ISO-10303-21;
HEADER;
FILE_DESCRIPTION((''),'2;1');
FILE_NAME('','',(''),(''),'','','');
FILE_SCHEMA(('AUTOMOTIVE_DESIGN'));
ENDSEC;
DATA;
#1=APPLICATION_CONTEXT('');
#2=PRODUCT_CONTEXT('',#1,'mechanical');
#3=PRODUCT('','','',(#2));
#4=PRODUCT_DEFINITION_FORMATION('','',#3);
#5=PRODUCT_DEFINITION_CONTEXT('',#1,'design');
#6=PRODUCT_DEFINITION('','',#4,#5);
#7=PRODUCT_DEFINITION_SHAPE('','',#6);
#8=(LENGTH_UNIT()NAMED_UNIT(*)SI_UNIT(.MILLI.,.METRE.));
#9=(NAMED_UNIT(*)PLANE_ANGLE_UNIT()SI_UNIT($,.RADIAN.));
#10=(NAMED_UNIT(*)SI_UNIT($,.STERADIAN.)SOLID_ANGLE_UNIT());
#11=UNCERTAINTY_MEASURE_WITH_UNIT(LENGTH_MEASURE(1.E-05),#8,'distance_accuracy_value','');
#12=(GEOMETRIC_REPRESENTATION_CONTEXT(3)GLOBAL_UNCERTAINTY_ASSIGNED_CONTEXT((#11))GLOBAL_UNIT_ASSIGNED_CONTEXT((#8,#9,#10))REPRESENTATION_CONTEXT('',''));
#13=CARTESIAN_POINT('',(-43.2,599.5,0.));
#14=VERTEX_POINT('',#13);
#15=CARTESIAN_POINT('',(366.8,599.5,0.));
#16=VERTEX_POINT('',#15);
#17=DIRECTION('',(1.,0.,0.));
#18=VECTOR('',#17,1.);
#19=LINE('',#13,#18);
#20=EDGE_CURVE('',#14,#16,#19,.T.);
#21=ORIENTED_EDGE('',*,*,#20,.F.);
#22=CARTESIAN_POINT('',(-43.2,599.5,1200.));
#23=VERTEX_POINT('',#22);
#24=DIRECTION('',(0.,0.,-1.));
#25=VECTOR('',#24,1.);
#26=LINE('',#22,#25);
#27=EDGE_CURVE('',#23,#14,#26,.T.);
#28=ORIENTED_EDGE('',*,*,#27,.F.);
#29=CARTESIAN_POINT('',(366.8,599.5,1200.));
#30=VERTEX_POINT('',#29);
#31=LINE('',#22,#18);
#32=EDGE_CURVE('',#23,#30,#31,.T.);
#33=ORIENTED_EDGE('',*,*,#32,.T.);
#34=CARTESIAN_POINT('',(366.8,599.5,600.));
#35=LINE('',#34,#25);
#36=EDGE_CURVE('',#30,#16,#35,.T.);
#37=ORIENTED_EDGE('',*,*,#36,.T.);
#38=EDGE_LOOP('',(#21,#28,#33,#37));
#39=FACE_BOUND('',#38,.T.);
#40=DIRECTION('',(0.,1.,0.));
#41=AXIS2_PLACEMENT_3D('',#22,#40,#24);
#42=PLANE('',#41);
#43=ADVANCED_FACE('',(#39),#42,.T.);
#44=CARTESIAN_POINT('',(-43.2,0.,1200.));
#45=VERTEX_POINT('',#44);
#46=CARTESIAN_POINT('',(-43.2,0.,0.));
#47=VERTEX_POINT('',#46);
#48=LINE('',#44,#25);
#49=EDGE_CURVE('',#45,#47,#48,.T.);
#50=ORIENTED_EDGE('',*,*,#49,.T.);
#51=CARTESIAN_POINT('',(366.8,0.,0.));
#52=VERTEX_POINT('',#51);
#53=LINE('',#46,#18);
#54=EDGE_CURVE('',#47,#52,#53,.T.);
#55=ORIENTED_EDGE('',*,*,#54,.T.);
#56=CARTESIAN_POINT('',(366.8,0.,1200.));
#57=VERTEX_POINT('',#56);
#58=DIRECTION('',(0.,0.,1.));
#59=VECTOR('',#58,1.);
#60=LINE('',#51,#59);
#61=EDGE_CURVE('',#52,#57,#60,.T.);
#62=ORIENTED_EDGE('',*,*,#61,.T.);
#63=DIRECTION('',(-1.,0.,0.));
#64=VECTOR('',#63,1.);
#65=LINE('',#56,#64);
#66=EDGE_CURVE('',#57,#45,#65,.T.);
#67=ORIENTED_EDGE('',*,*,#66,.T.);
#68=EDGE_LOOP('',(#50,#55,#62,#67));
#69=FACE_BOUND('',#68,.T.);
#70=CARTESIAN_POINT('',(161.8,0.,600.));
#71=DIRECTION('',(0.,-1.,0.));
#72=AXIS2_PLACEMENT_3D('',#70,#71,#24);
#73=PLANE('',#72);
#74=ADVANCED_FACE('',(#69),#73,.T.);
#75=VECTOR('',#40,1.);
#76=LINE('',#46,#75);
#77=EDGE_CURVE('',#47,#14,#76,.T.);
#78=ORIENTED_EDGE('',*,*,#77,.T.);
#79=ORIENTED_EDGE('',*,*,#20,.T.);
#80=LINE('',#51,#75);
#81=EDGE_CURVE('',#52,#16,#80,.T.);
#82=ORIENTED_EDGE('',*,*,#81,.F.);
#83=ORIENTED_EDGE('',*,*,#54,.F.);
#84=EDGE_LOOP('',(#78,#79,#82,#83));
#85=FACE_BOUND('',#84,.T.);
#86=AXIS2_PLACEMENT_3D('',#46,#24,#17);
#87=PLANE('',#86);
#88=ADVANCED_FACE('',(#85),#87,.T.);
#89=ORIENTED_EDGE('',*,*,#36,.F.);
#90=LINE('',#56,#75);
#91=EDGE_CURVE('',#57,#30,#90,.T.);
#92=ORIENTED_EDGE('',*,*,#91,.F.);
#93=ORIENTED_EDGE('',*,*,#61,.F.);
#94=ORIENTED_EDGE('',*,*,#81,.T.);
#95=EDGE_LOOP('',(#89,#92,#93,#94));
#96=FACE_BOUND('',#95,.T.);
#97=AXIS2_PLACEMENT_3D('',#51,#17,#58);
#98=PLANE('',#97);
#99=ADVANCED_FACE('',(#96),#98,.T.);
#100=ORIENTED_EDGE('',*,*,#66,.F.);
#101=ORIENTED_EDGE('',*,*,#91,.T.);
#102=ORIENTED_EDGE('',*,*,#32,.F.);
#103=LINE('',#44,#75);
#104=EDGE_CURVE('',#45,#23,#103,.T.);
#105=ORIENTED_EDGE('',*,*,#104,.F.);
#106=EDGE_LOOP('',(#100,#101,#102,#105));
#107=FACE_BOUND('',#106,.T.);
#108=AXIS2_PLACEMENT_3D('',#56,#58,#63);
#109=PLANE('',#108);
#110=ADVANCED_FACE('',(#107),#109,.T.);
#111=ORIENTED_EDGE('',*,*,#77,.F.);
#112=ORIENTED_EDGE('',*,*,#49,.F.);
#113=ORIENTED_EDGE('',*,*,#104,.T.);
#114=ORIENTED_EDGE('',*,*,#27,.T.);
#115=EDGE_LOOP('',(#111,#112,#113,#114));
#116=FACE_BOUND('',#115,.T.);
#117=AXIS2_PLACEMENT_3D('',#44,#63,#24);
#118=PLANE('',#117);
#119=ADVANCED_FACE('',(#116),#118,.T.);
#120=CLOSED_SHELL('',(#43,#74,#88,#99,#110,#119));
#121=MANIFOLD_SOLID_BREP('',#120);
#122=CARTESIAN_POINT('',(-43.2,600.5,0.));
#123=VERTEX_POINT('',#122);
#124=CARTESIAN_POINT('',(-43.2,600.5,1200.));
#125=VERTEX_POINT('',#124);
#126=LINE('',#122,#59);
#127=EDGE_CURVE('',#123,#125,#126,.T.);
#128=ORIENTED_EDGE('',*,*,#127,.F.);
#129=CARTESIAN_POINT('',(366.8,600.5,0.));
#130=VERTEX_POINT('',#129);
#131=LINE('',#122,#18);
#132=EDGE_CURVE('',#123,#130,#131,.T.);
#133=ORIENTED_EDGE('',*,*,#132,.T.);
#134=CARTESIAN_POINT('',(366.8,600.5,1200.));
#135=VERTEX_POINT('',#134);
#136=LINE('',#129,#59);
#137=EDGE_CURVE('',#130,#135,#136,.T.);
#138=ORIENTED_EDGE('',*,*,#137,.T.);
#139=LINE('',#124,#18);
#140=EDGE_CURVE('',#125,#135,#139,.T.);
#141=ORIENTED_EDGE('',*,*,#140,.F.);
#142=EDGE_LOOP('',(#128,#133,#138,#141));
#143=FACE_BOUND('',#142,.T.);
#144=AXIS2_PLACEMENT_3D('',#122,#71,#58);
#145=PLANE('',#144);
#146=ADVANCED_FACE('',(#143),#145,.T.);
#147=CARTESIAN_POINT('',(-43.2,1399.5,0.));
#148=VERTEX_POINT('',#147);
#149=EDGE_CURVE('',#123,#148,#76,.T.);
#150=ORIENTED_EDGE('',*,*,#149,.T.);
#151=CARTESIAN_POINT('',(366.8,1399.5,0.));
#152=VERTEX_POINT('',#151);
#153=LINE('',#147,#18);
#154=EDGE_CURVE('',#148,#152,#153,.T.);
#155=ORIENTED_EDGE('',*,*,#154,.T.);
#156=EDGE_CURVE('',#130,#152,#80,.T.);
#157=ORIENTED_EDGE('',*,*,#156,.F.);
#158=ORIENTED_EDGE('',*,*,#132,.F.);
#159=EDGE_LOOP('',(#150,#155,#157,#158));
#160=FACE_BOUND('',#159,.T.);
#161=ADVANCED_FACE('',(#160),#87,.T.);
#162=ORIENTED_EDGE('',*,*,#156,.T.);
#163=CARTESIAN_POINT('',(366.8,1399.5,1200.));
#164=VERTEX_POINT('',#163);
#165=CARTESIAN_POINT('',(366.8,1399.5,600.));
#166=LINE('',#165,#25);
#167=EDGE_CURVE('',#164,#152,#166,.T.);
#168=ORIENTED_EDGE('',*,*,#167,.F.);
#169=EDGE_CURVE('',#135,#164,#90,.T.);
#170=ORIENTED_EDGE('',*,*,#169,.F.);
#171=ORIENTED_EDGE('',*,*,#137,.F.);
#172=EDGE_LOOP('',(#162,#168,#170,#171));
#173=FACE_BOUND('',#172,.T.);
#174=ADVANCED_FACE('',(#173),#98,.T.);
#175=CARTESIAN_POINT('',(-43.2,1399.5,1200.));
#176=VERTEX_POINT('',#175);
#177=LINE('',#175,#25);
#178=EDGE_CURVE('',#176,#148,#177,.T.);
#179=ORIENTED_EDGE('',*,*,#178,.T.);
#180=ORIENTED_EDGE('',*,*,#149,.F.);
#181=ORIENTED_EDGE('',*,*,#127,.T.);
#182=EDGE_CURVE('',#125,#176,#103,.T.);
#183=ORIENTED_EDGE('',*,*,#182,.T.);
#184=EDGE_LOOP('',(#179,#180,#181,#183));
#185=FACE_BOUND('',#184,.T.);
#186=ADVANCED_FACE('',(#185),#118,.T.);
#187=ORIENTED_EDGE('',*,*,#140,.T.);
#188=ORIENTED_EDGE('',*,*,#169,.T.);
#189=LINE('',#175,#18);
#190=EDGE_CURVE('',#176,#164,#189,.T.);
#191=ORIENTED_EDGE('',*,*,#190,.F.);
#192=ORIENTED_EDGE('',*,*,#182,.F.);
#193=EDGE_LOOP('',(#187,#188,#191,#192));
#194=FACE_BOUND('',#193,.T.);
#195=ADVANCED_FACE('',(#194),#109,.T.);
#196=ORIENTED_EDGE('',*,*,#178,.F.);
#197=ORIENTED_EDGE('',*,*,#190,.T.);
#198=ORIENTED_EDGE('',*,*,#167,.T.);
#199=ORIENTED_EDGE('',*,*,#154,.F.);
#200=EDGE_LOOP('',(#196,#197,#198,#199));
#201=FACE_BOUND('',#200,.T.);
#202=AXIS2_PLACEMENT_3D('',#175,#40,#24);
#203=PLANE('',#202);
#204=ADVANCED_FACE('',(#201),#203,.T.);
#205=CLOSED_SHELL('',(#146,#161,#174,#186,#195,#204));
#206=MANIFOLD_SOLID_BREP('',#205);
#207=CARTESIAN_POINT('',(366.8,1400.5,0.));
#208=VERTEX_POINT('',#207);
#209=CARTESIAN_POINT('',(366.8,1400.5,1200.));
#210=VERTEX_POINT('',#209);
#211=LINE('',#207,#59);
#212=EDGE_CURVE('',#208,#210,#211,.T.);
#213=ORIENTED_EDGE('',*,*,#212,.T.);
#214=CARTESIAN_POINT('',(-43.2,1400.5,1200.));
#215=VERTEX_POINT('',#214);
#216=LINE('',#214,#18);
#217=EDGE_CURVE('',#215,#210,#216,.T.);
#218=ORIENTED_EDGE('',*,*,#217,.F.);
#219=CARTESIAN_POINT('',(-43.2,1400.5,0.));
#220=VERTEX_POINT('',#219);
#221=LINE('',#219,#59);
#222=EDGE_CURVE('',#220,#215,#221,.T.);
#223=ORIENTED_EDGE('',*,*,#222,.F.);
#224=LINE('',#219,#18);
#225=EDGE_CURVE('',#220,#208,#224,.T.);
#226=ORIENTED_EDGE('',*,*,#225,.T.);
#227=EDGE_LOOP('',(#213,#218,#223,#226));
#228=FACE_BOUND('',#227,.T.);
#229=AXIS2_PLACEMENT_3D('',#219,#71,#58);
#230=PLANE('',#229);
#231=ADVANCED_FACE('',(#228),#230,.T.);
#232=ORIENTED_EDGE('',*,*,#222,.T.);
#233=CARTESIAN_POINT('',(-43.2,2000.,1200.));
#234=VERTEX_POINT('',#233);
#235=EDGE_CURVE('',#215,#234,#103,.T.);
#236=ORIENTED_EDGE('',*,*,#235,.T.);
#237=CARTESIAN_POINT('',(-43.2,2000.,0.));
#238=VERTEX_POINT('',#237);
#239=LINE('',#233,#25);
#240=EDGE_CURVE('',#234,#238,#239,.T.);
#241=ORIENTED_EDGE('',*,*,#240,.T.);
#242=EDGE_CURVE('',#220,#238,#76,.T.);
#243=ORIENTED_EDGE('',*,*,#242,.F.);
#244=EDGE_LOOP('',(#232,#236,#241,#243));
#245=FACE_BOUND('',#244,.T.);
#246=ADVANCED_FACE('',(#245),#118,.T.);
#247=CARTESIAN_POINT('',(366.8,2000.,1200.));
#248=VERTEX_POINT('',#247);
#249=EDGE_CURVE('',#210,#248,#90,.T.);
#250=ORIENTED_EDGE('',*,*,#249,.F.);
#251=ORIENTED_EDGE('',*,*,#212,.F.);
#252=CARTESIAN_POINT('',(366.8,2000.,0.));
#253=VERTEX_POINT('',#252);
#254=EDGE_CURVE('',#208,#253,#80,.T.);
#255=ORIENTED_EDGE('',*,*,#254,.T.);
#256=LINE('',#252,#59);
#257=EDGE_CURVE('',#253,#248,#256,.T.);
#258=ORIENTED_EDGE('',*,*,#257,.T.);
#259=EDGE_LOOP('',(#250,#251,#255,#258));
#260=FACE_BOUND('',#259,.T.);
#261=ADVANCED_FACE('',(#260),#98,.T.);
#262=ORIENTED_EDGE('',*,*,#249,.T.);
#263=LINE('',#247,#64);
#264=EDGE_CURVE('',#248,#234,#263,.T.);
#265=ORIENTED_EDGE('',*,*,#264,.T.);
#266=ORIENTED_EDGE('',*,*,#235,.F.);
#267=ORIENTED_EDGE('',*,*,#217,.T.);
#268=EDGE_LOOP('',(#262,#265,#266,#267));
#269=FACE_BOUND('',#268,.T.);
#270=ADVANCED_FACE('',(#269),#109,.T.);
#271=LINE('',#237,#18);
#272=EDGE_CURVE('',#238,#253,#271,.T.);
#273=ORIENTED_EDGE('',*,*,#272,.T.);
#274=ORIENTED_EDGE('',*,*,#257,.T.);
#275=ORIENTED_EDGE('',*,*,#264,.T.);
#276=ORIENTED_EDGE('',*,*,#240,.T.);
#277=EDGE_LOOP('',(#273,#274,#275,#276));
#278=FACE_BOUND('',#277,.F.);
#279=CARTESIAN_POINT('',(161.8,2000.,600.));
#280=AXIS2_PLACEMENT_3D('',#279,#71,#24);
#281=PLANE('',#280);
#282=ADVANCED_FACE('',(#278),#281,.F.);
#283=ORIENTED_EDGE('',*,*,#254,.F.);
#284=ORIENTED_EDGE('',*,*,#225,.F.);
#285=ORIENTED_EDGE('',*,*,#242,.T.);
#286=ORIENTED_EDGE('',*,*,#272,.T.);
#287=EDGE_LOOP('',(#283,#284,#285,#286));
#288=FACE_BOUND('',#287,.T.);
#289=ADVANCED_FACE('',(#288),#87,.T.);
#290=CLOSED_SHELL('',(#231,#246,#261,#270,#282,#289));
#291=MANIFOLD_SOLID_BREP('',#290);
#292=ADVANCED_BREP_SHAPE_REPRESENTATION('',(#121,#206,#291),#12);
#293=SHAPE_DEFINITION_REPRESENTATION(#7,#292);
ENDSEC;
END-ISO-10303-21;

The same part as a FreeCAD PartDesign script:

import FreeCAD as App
import Part
import Sketcher

doc = App.newDocument("Part")
body = doc.addObject("PartDesign::Body", "Body")
body.AllowCompound = True

# Sketch on XZ plane
sketch1 = body.newObject("Sketcher::SketchObject", "Sketch")
sketch1.AttachmentSupport = (doc.getObject("XZ_Plane"), [""])
sketch1.MapMode = "FlatFace"
sketch1.addGeometry(Part.LineSegment(App.Vector(-43.2, 1200, 0), App.Vector(-43.2, 0, 0)), False)
sketch1.addGeometry(Part.LineSegment(App.Vector(-43.2, 0, 0), App.Vector(366.8, 0, 0)), False)
sketch1.addGeometry(Part.LineSegment(App.Vector(366.8, 0, 0), App.Vector(366.8, 1200, 0)), False)
sketch1.addGeometry(Part.LineSegment(App.Vector(366.8, 1200, 0), App.Vector(-43.2, 1200, 0)), False)
sketch1.addConstraint(Sketcher.Constraint("Coincident", 0, 2, 1, 1))
sketch1.addConstraint(Sketcher.Constraint("Coincident", 1, 2, 2, 1))
sketch1.addConstraint(Sketcher.Constraint("Coincident", 2, 2, 3, 1))
sketch1.addConstraint(Sketcher.Constraint("Coincident", 3, 2, 0, 1))
sketch1.addConstraint(Sketcher.Constraint("Vertical", 0))
sketch1.addConstraint(Sketcher.Constraint("Horizontal", 1))
sketch1.addConstraint(Sketcher.Constraint("Vertical", 2))
sketch1.addConstraint(Sketcher.Constraint("Horizontal", 3))
sketch1.addConstraint(Sketcher.Constraint("PointOnObject", 0, 2, -1))
sketch1.addConstraint(Sketcher.Constraint("DistanceX", 0, 2, -1, 1, 43.2))
sketch1.addConstraint(Sketcher.Constraint("DistanceX", 1, 1, 1, 2, 410.0))
sketch1.addConstraint(Sketcher.Constraint("DistanceY", 0, 2, 0, 1, 1200.0))
pad1 = body.newObject("PartDesign::Pad", "Pad")
pad1.Profile = sketch1
pad1.Length = 2000
pad1.Reversed = True

# Sketch on YZ plane
sketch2 = body.newObject("Sketcher::SketchObject", "Sketch001")
sketch2.AttachmentSupport = (doc.getObject("YZ_Plane"), [""])
sketch2.MapMode = "FlatFace"
sketch2.AttachmentOffset = App.Placement(App.Vector(0, 0, -43.2), App.Rotation())
sketch2.addGeometry(Part.LineSegment(App.Vector(599.5, 1200, 0), App.Vector(600.5, 1200, 0)), False)
sketch2.addGeometry(Part.LineSegment(App.Vector(600.5, 1200, 0), App.Vector(600.5, 0, 0)), False)
sketch2.addGeometry(Part.LineSegment(App.Vector(600.5, 0, 0), App.Vector(599.5, 0, 0)), False)
sketch2.addGeometry(Part.LineSegment(App.Vector(599.5, 0, 0), App.Vector(599.5, 1200, 0)), False)
sketch2.addGeometry(Part.LineSegment(App.Vector(1399.5, 1200, 0), App.Vector(1400.5, 1200, 0)), False)
sketch2.addGeometry(Part.LineSegment(App.Vector(1400.5, 1200, 0), App.Vector(1400.5, 0, 0)), False)
sketch2.addGeometry(Part.LineSegment(App.Vector(1400.5, 0, 0), App.Vector(1399.5, 0, 0)), False)
sketch2.addGeometry(Part.LineSegment(App.Vector(1399.5, 0, 0), App.Vector(1399.5, 1200, 0)), False)
sketch2.addConstraint(Sketcher.Constraint("Coincident", 0, 2, 1, 1))
sketch2.addConstraint(Sketcher.Constraint("Coincident", 1, 2, 2, 1))
sketch2.addConstraint(Sketcher.Constraint("Coincident", 2, 2, 3, 1))
sketch2.addConstraint(Sketcher.Constraint("Coincident", 3, 2, 0, 1))
sketch2.addConstraint(Sketcher.Constraint("Coincident", 4, 2, 5, 1))
sketch2.addConstraint(Sketcher.Constraint("Coincident", 5, 2, 6, 1))
sketch2.addConstraint(Sketcher.Constraint("Coincident", 6, 2, 7, 1))
sketch2.addConstraint(Sketcher.Constraint("Coincident", 7, 2, 4, 1))
sketch2.addConstraint(Sketcher.Constraint("Horizontal", 0))
sketch2.addConstraint(Sketcher.Constraint("Vertical", 1))
sketch2.addConstraint(Sketcher.Constraint("Horizontal", 2))
sketch2.addConstraint(Sketcher.Constraint("Vertical", 3))
sketch2.addConstraint(Sketcher.Constraint("Horizontal", 4))
sketch2.addConstraint(Sketcher.Constraint("Vertical", 5))
sketch2.addConstraint(Sketcher.Constraint("Horizontal", 6))
sketch2.addConstraint(Sketcher.Constraint("Vertical", 7))
sketch2.addConstraint(Sketcher.Constraint("PointOnObject", 1, 2, -1))
sketch2.addConstraint(Sketcher.Constraint("PointOnObject", 5, 2, -1))
sketch2.addConstraint(Sketcher.Constraint("Horizontal", 3, 2, 4, 2))
sketch2.addConstraint(Sketcher.Constraint("Equal", 2, 4))
sketch2.addConstraint(Sketcher.Constraint("DistanceX", 0, 1, 0, 2, 1.0))
sketch2.addConstraint(Sketcher.Constraint("DistanceY", 1, 2, 1, 1, 1200.0))
sketch2.addConstraint(Sketcher.Constraint("DistanceX", 0, 2, 4, 2, 800.0))
sketch2.addConstraint(Sketcher.Constraint("DistanceX", -1, 1, 0, 2, 600.5))
pocket1 = body.newObject("PartDesign::Pocket", "Pocket")
pocket1.Profile = sketch2
pocket1.Type = "UpToFirst"
pocket1.Reversed = True

doc.recompute()
